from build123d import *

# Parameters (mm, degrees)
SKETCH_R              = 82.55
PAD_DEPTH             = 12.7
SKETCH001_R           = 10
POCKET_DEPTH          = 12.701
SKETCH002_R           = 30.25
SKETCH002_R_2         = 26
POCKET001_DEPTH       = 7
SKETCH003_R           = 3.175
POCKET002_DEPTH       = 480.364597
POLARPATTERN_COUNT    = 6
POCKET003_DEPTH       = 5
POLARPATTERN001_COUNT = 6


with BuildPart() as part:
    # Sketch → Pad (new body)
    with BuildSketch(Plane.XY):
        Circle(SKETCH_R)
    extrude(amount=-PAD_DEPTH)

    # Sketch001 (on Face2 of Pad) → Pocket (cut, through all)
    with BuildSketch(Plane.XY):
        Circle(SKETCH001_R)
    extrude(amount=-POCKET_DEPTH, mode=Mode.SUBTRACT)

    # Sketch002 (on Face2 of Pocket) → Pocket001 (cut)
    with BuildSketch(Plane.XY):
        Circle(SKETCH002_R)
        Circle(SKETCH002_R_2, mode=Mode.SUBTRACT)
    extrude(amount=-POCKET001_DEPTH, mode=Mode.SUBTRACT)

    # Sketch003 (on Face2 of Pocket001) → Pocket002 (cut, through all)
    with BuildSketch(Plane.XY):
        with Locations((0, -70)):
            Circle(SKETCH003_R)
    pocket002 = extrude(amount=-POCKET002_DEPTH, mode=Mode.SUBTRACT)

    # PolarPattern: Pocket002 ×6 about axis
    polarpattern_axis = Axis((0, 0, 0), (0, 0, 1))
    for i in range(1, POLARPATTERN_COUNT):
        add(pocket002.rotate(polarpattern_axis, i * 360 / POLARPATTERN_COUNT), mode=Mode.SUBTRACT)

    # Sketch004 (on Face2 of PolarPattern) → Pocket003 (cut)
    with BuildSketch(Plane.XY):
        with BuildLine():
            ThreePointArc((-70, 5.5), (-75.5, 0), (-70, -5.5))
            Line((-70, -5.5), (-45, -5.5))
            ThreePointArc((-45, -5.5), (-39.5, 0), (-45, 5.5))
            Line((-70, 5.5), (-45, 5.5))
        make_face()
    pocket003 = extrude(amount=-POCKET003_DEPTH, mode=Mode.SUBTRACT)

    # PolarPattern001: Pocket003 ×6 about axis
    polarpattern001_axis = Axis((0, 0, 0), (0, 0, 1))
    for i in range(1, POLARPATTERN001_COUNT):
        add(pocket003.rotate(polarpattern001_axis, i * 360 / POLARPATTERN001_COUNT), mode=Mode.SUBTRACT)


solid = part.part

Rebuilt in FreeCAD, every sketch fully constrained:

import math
import FreeCAD as App
import Part
import Sketcher
from FreeCAD import Vector
Q = App.Units.Quantity

doc = App.newDocument("Part")
params = doc.addObject("Spreadsheet::Sheet", "Params")
for row, (alias, value) in enumerate([
    ("sketch1_diameter", "165.1 mm"),
    ("pad1_length", "12.7 mm"),
    ("sketch2_diameter", "20 mm"),
    ("sketch3_diameter", "52 mm"),
    ("sketch3_diameter2", "60.5 mm"),
    ("pocket2_length", "7 mm"),
    ("sketch4_diameter", "6.35 mm"),
    ("sketch5_radius", "5.5 mm"),
    ("sketch5_width", "25 mm"),
    ("pocket4_length", "5 mm"),
], start=1):
    params.set(f"A{row}", alias)
    params.set(f"B{row}", "=" + value)
    params.setAlias(f"B{row}", alias)

body = doc.addObject("PartDesign::Body", "Body")

# Sketch on XY plane
sketch1 = body.newObject("Sketcher::SketchObject", "Sketch")
sketch1.AttachmentSupport = (doc.getObject("XY_Plane"), [""])
sketch1.MapMode = "FlatFace"
sketch1.addGeometry(Part.Circle(Vector(0, 0, 0), Vector(0, 0, 1), 82.55), False)
sketch1.addConstraint(Sketcher.Constraint("Coincident", 0, 3, -1, 1))
sketch1.addConstraint(Sketcher.Constraint("Diameter", 0, Q("165.1 mm")))
sketch1.setExpression("Constraints[1]", "Params.sketch1_diameter")
pad1 = body.newObject("PartDesign::Pad", "Pad")
pad1.Profile = sketch1
pad1.setExpression("Length", "Params.pad1_length")
pad1.Reversed = True

# Sketch on XY plane
sketch2 = body.newObject("Sketcher::SketchObject", "Sketch001")
sketch2.AttachmentSupport = (doc.getObject("XY_Plane"), [""])
sketch2.MapMode = "FlatFace"
sketch2.addGeometry(Part.Circle(Vector(0, 0, 0), Vector(0, 0, 1), 10), False)
sketch2.addConstraint(Sketcher.Constraint("Coincident", 0, 3, -1, 1))
sketch2.addConstraint(Sketcher.Constraint("Diameter", 0, Q("20 mm")))
sketch2.setExpression("Constraints[1]", "Params.sketch2_diameter")
pocket1 = body.newObject("PartDesign::Pocket", "Pocket")
pocket1.Profile = sketch2
pocket1.Type = "ThroughAll"

# Sketch on XY plane
sketch3 = body.newObject("Sketcher::SketchObject", "Sketch002")
sketch3.AttachmentSupport = (doc.getObject("XY_Plane"), [""])
sketch3.MapMode = "FlatFace"
sketch3.addGeometry(Part.Circle(Vector(0, 0, 0), Vector(0, 0, 1), 30.25), False)
sketch3.addGeometry(Part.Circle(Vector(0, 0, 0), Vector(0, 0, 1), 26), False)
sketch3.addConstraint(Sketcher.Constraint("Coincident", 0, 3, -1, 1))
sketch3.addConstraint(Sketcher.Constraint("Coincident", 1, 3, -1, 1))
sketch3.addConstraint(Sketcher.Constraint("Diameter", 1, Q("52 mm")))
sketch3.addConstraint(Sketcher.Constraint("Diameter", 0, Q("60.5 mm")))
sketch3.setExpression("Constraints[2]", "Params.sketch3_diameter")
sketch3.setExpression("Constraints[3]", "Params.sketch3_diameter2")
pocket2 = body.newObject("PartDesign::Pocket", "Pocket001")
pocket2.Profile = sketch3
pocket2.setExpression("Length", "Params.pocket2_length")

# Sketch on XY plane
sketch4 = body.newObject("Sketcher::SketchObject", "Sketch003")
sketch4.AttachmentSupport = (doc.getObject("XY_Plane"), [""])
sketch4.MapMode = "FlatFace"
sketch4.addGeometry(Part.Circle(Vector(0, -70, 0), Vector(0, 0, 1), 3.175), False)
sketch4.addConstraint(Sketcher.Constraint("PointOnObject", 0, 3, -2))
sketch4.addConstraint(Sketcher.Constraint("Diameter", 0, Q("6.35 mm")))
sketch4.addConstraint(Sketcher.Constraint("DistanceY", 0, 3, -1, 1, Q("70 mm")))
sketch4.setExpression("Constraints[1]", "Params.sketch4_diameter")
pocket3 = body.newObject("PartDesign::Pocket", "Pocket002")
pocket3.Profile = sketch4
pocket3.Type = "ThroughAll"
doc.recompute()

polarpattern = body.newObject("PartDesign::PolarPattern", "PolarPattern")
polarpattern.Originals = [pocket3]
polarpattern.Axis = (doc.getObject("Z_Axis"), [""])
polarpattern.Angle = 360
polarpattern.Occurrences = 6
body.Tip = polarpattern

# Sketch on XY plane
sketch5 = body.newObject("Sketcher::SketchObject", "Sketch004")
sketch5.AttachmentSupport = (doc.getObject("XY_Plane"), [""])
sketch5.MapMode = "FlatFace"
sketch5.addGeometry(Part.ArcOfCircle(Part.Circle(Vector(-70, 0, 0), Vector(0, 0, 1), 5.5), math.radians(90), math.radians(270)), False)
sketch5.addGeometry(Part.LineSegment(Vector(-70, -5.5, 0), Vector(-45, -5.5, 0)), False)
sketch5.addGeometry(Part.ArcOfCircle(Part.Circle(Vector(-45, 0, 0), Vector(0, 0, 1), 5.5), math.radians(-90), math.radians(90)), False)
sketch5.addGeometry(Part.LineSegment(Vector(-45, 5.5, 0), Vector(-70, 5.5, 0)), False)
sketch5.addConstraint(Sketcher.Constraint("Tangent", 0, 2, 1, 1))
sketch5.addConstraint(Sketcher.Constraint("Tangent", 1, 2, 2, 1))
sketch5.addConstraint(Sketcher.Constraint("Tangent", 2, 2, 3, 1))
sketch5.addConstraint(Sketcher.Constraint("Tangent", 3, 2, 0, 1))
sketch5.addConstraint(Sketcher.Constraint("Horizontal", 1))
sketch5.addConstraint(Sketcher.Constraint("Horizontal", 3))
sketch5.addConstraint(Sketcher.Constraint("PointOnObject", 0, 3, -1))
sketch5.addConstraint(Sketcher.Constraint("Radius", 0, Q("5.5 mm")))
sketch5.addConstraint(Sketcher.Constraint("DistanceX", 1, 1, 1, 2, Q("25 mm")))
sketch5.addConstraint(Sketcher.Constraint("DistanceX", 0, 3, -1, 1, Q("70 mm")))
sketch5.setExpression("Constraints[7]", "Params.sketch5_radius")
sketch5.setExpression("Constraints[8]", "Params.sketch5_width")
pocket4 = body.newObject("PartDesign::Pocket", "Pocket003")
pocket4.Profile = sketch5
pocket4.setExpression("Length", "Params.pocket4_length")
doc.recompute()

polarpattern2 = body.newObject("PartDesign::PolarPattern", "PolarPattern001")
polarpattern2.Originals = [pocket4]
polarpattern2.Axis = (doc.getObject("Z_Axis"), [""])
polarpattern2.Angle = 360
polarpattern2.Occurrences = 6
body.Tip = polarpattern2

doc.recompute()
